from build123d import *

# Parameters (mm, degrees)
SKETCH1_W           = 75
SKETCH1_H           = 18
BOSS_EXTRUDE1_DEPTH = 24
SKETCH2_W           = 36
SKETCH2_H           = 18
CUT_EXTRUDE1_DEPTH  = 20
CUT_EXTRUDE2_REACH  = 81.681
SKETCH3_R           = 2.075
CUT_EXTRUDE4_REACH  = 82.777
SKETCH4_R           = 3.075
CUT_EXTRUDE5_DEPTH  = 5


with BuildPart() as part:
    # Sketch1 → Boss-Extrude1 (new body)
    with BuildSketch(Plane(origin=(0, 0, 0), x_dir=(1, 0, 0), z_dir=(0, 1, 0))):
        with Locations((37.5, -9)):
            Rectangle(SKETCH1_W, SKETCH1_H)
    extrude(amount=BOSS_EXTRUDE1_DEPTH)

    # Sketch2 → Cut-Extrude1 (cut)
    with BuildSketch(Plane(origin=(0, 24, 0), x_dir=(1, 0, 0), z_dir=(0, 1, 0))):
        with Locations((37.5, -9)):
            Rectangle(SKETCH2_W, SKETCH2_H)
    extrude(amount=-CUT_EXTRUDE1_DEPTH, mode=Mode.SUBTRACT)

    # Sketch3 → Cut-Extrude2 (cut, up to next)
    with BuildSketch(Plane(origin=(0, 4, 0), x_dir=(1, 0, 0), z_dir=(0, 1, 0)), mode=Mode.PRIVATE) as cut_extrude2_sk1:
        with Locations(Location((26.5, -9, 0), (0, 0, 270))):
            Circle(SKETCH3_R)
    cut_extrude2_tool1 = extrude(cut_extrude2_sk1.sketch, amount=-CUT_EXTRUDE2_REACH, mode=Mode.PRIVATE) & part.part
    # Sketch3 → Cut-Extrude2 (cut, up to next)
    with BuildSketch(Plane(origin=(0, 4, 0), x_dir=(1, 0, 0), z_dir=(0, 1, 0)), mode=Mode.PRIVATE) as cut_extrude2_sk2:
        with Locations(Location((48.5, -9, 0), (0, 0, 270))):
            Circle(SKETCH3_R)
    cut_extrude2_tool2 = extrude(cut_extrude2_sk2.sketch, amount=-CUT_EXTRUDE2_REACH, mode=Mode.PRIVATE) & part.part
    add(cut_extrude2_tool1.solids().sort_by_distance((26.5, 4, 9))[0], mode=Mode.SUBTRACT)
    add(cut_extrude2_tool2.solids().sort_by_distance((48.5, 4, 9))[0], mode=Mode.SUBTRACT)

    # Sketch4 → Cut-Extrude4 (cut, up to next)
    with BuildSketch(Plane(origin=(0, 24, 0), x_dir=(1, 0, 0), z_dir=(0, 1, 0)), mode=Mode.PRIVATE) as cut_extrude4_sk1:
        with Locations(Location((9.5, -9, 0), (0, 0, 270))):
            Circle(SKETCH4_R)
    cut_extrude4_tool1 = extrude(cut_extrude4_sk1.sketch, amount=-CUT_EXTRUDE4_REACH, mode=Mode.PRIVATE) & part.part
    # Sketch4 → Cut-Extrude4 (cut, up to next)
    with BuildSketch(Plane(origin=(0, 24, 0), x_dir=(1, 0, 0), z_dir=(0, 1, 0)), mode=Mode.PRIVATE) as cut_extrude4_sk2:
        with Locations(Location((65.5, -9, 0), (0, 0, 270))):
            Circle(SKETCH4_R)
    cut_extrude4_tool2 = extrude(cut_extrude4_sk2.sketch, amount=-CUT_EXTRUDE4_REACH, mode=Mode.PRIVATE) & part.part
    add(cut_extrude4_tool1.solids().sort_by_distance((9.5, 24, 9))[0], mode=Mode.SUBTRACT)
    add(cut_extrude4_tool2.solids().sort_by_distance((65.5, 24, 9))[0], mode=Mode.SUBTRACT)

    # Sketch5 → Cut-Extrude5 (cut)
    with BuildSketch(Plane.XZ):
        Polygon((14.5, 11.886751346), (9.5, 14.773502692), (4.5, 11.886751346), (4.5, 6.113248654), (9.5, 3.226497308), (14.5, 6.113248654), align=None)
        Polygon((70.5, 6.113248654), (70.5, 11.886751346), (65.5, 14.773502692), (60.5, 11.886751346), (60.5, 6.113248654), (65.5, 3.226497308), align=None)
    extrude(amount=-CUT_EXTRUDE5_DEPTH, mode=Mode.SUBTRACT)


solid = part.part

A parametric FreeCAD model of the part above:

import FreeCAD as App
import Part
import Sketcher
from FreeCAD import Vector
Q = App.Units.Quantity

doc = App.newDocument("Part")
body = doc.addObject("PartDesign::Body", "Body")

sketch1 = body.newObject("Sketcher::SketchObject", "Sketch")
sketch1.AttachmentSupport = (doc.getObject("XZ_Plane"), [""])
sketch1.MapMode = "FlatFace"
sketch1.addGeometry(Part.LineSegment(Vector(0, 0, 0), Vector(0, 18, 0)), False)
sketch1.addGeometry(Part.LineSegment(Vector(0, 18, 0), Vector(75, 18, 0)), False)
sketch1.addGeometry(Part.LineSegment(Vector(75, 18, 0), Vector(75, 0, 0)), False)
sketch1.addGeometry(Part.LineSegment(Vector(75, 0, 0), Vector(0, 0, 0)), False)
sketch1.addConstraint(Sketcher.Constraint("Coincident", 0, 2, 1, 1))
sketch1.addConstraint(Sketcher.Constraint("Coincident", 1, 2, 2, 1))
sketch1.addConstraint(Sketcher.Constraint("Coincident", 2, 2, 3, 1))
sketch1.addConstraint(Sketcher.Constraint("Coincident", 3, 2, 0, 1))
sketch1.addConstraint(Sketcher.Constraint("Vertical", 0))
sketch1.addConstraint(Sketcher.Constraint("Horizontal", 1))
sketch1.addConstraint(Sketcher.Constraint("Vertical", 2))
sketch1.addConstraint(Sketcher.Constraint("Horizontal", 3))
sketch1.addConstraint(Sketcher.Constraint("Coincident", 3, 2, -1, 1))
sketch1.addConstraint(Sketcher.Constraint("DistanceX", 1, 1, 1, 2, Q("75 mm")))
sketch1.addConstraint(Sketcher.Constraint("DistanceY", 0, 1, 0, 2, Q("18 mm")))
pad1 = body.newObject("PartDesign::Pad", "Pad")
pad1.Profile = sketch1
pad1.Length = 24
pad1.Reversed = True

sketch2 = body.newObject("Sketcher::SketchObject", "Sketch001")
sketch2.AttachmentSupport = (doc.getObject("XZ_Plane"), [""])
sketch2.MapMode = "FlatFace"
sketch2.AttachmentOffset = App.Placement(Vector(0, 0, -24), App.Rotation())
sketch2.addGeometry(Part.LineSegment(Vector(19.5, 0, 0), Vector(19.5, 18, 0)), False)
sketch2.addGeometry(Part.LineSegment(Vector(19.5, 18, 0), Vector(55.5, 18, 0)), False)
sketch2.addGeometry(Part.LineSegment(Vector(55.5, 18, 0), Vector(55.5, 0, 0)), False)
sketch2.addGeometry(Part.LineSegment(Vector(55.5, 0, 0), Vector(19.5, 0, 0)), False)
sketch2.addConstraint(Sketcher.Constraint("Coincident", 0, 2, 1, 1))
sketch2.addConstraint(Sketcher.Constraint("Coincident", 1, 2, 2, 1))
sketch2.addConstraint(Sketcher.Constraint("Coincident", 2, 2, 3, 1))
sketch2.addConstraint(Sketcher.Constraint("Coincident", 3, 2, 0, 1))
sketch2.addConstraint(Sketcher.Constraint("Vertical", 0))
sketch2.addConstraint(Sketcher.Constraint("Horizontal", 1))
sketch2.addConstraint(Sketcher.Constraint("Vertical", 2))
sketch2.addConstraint(Sketcher.Constraint("Horizontal", 3))
sketch2.addConstraint(Sketcher.Constraint("PointOnObject", 2, 2, -1))
sketch2.addConstraint(Sketcher.Constraint("DistanceX", 1, 1, 1, 2, Q("36 mm")))
sketch2.addConstraint(Sketcher.Constraint("DistanceY", 0, 1, 0, 2, Q("18 mm")))
sketch2.addConstraint(Sketcher.Constraint("DistanceX", -1, 1, 0, 2, Q("19.5 mm")))
pocket1 = body.newObject("PartDesign::Pocket", "Pocket")
pocket1.Profile = sketch2
pocket1.Length = 20
pocket1.Reversed = True

sketch3 = body.newObject("Sketcher::SketchObject", "Sketch002")
sketch3.AttachmentSupport = (doc.getObject("XZ_Plane"), [""])
sketch3.MapMode = "FlatFace"
sketch3.AttachmentOffset = App.Placement(Vector(0, 0, -4), App.Rotation())
sketch3.addGeometry(Part.Circle(Vector(26.5, 9, 0), Vector(0, 0, 1), 2.075), False)
sketch3.addConstraint(Sketcher.Constraint("Diameter", 0, Q("4.15 mm")))
sketch3.addConstraint(Sketcher.Constraint("DistanceY", -1, 1, 0, 3, Q("9 mm")))
sketch3.addConstraint(Sketcher.Constraint("DistanceX", -1, 1, 0, 3, Q("26.5 mm")))
pocket2 = body.newObject("PartDesign::Pocket", "Pocket001")
pocket2.Profile = sketch3
pocket2.Type = "UpToFirst"
pocket2.Reversed = True

sketch4 = body.newObject("Sketcher::SketchObject", "Sketch003")
sketch4.AttachmentSupport = (doc.getObject("XZ_Plane"), [""])
sketch4.MapMode = "FlatFace"
sketch4.AttachmentOffset = App.Placement(Vector(0, 0, -4), App.Rotation())
sketch4.addGeometry(Part.Circle(Vector(48.5, 9, 0), Vector(0, 0, 1), 2.075), False)
sketch4.addConstraint(Sketcher.Constraint("Diameter", 0, Q("4.15 mm")))
sketch4.addConstraint(Sketcher.Constraint("DistanceY", -1, 1, 0, 3, Q("9 mm")))
sketch4.addConstraint(Sketcher.Constraint("DistanceX", -1, 1, 0, 3, Q("48.5 mm")))
pocket3 = body.newObject("PartDesign::Pocket", "Pocket002")
pocket3.Profile = sketch4
pocket3.Type = "UpToFirst"
pocket3.Reversed = True

sketch5 = body.newObject("Sketcher::SketchObject", "Sketch004")
sketch5.AttachmentSupport = (doc.getObject("XZ_Plane"), [""])
sketch5.MapMode = "FlatFace"
sketch5.AttachmentOffset = App.Placement(Vector(0, 0, -24), App.Rotation())
sketch5.addGeometry(Part.Circle(Vector(9.5, 9, 0), Vector(0, 0, 1), 3.075), False)
sketch5.addConstraint(Sketcher.Constraint("Diameter", 0, Q("6.15 mm")))
sketch5.addConstraint(Sketcher.Constraint("DistanceY", -1, 1, 0, 3, Q("9 mm")))
sketch5.addConstraint(Sketcher.Constraint("DistanceX", -1, 1, 0, 3, Q("9.5 mm")))
pocket4 = body.newObject("PartDesign::Pocket", "Pocket003")
pocket4.Profile = sketch5
pocket4.Type = "UpToFirst"
pocket4.Reversed = True

sketch6 = body.newObject("Sketcher::SketchObject", "Sketch005")
sketch6.AttachmentSupport = (doc.getObject("XZ_Plane"), [""])
sketch6.MapMode = "FlatFace"
sketch6.AttachmentOffset = App.Placement(Vector(0, 0, -24), App.Rotation())
sketch6.addGeometry(Part.Circle(Vector(65.5, 9, 0), Vector(0, 0, 1), 3.075), False)
sketch6.addConstraint(Sketcher.Constraint("Diameter", 0, Q("6.15 mm")))
sketch6.addConstraint(Sketcher.Constraint("DistanceY", -1, 1, 0, 3, Q("9 mm")))
sketch6.addConstraint(Sketcher.Constraint("DistanceX", -1, 1, 0, 3, Q("65.5 mm")))
pocket5 = body.newObject("PartDesign::Pocket", "Pocket004")
pocket5.Profile = sketch6
pocket5.Type = "UpToFirst"
pocket5.Reversed = True

sketch7 = body.newObject("Sketcher::SketchObject", "Sketch006")
sketch7.AttachmentSupport = (doc.getObject("XZ_Plane"), [""])
sketch7.MapMode = "FlatFace"
sketch7.addGeometry(Part.LineSegment(Vector(14.5, 11.886751, 0), Vector(9.5, 14.773503, 0)), False)
sketch7.addGeometry(Part.LineSegment(Vector(9.5, 14.773503, 0), Vector(4.5, 11.886751, 0)), False)
sketch7.addGeometry(Part.LineSegment(Vector(4.5, 11.886751, 0), Vector(4.5, 6.113249, 0)), False)
sketch7.addGeometry(Part.LineSegment(Vector(4.5, 6.113249, 0), Vector(9.5, 3.226497, 0)), False)
sketch7.addGeometry(Part.LineSegment(Vector(9.5, 3.226497, 0), Vector(14.5, 6.113249, 0)), False)
sketch7.addGeometry(Part.LineSegment(Vector(14.5, 6.113249, 0), Vector(14.5, 11.886751, 0)), False)
sketch7.addGeometry(Part.LineSegment(Vector(70.5, 6.113249, 0), Vector(70.5, 11.886751, 0)), False)
sketch7.addGeometry(Part.LineSegment(Vector(70.5, 11.886751, 0), Vector(65.5, 14.773503, 0)), False)
sketch7.addGeometry(Part.LineSegment(Vector(65.5, 14.773503, 0), Vector(60.5, 11.886751, 0)), False)
sketch7.addGeometry(Part.LineSegment(Vector(60.5, 11.886751, 0), Vector(60.5, 6.113249, 0)), False)
sketch7.addGeometry(Part.LineSegment(Vector(60.5, 6.113249, 0), Vector(65.5, 3.226497, 0)), False)
sketch7.addGeometry(Part.LineSegment(Vector(65.5, 3.226497, 0), Vector(70.5, 6.113249, 0)), False)
sketch7.addConstraint(Sketcher.Constraint("Coincident", 0, 2, 1, 1))
sketch7.addConstraint(Sketcher.Constraint("Coincident", 1, 2, 2, 1))
sketch7.addConstraint(Sketcher.Constraint("Coincident", 2, 2, 3, 1))
sketch7.addConstraint(Sketcher.Constraint("Coincident", 3, 2, 4, 1))
sketch7.addConstraint(Sketcher.Constraint("Coincident", 4, 2, 5, 1))
sketch7.addConstraint(Sketcher.Constraint("Coincident", 5, 2, 0, 1))
sketch7.addConstraint(Sketcher.Constraint("Coincident", 6, 2, 7, 1))
sketch7.addConstraint(Sketcher.Constraint("Coincident", 7, 2, 8, 1))
sketch7.addConstraint(Sketcher.Constraint("Coincident", 8, 2, 9, 1))
sketch7.addConstraint(Sketcher.Constraint("Coincident", 9, 2, 10, 1))
sketch7.addConstraint(Sketcher.Constraint("Coincident", 10, 2, 11, 1))
sketch7.addConstraint(Sketcher.Constraint("Coincident", 11, 2, 6, 1))
sketch7.addConstraint(Sketcher.Constraint("Vertical", 2))
sketch7.addConstraint(Sketcher.Constraint("Vertical", 5))
sketch7.addConstraint(Sketcher.Constraint("Vertical", 6))
sketch7.addConstraint(Sketcher.Constraint("Vertical", 9))
sketch7.addConstraint(Sketcher.Constraint("Parallel", 0, 3))
sketch7.addConstraint(Sketcher.Constraint("Parallel", 1, 4))
sketch7.addConstraint(Sketcher.Constraint("Parallel", 3, 7))
sketch7.addConstraint(Sketcher.Constraint("Parallel", 4, 8))
sketch7.addConstraint(Sketcher.Constraint("Parallel", 7, 10))
sketch7.addConstraint(Sketcher.Constraint("Parallel", 8, 11))
sketch7.addConstraint(Sketcher.Constraint("Horizontal", 2, 2, 4, 2))
sketch7.addConstraint(Sketcher.Constraint("Horizontal", 1, 2, 5, 2))
sketch7.addConstraint(Sketcher.Constraint("Horizontal", 5, 2, 6, 2))
sketch7.addConstraint(Sketcher.Constraint("Horizontal", 0, 2, 7, 2))
sketch7.addConstraint(Sketcher.Constraint("Horizontal", 6, 2, 8, 2))
sketch7.addConstraint(Sketcher.Constraint("Horizontal", 4, 2, 9, 2))
sketch7.addConstraint(Sketcher.Constraint("Horizontal", 3, 2, 10, 2))
sketch7.addConstraint(Sketcher.Constraint("Vertical", 0, 2, 3, 2))
sketch7.addConstraint(Sketcher.Constraint("Angle", 0, Q("150 deg")))
sketch7.addConstraint(Sketcher.Constraint("DistanceX", 1, 2, 0, 2, Q("5 mm")))
sketch7.addConstraint(Sketcher.Constraint("DistanceX", 5, 2, 6, 2, Q("56 mm")))
sketch7.addConstraint(Sketcher.Constraint("DistanceX", -1, 1, 0, 2, Q("9.5 mm")))
sketch7.addConstraint(Sketcher.Constraint("DistanceY", 2, 2, 2, 1, Q("5.773503 mm")))
sketch7.addConstraint(Sketcher.Constraint("DistanceY", -1, 1, 1, 2, Q("11.886751 mm")))
pocket6 = body.newObject("PartDesign::Pocket", "Pocket005")
pocket6.Profile = sketch7
pocket6.Length = 5

doc.recompute()
